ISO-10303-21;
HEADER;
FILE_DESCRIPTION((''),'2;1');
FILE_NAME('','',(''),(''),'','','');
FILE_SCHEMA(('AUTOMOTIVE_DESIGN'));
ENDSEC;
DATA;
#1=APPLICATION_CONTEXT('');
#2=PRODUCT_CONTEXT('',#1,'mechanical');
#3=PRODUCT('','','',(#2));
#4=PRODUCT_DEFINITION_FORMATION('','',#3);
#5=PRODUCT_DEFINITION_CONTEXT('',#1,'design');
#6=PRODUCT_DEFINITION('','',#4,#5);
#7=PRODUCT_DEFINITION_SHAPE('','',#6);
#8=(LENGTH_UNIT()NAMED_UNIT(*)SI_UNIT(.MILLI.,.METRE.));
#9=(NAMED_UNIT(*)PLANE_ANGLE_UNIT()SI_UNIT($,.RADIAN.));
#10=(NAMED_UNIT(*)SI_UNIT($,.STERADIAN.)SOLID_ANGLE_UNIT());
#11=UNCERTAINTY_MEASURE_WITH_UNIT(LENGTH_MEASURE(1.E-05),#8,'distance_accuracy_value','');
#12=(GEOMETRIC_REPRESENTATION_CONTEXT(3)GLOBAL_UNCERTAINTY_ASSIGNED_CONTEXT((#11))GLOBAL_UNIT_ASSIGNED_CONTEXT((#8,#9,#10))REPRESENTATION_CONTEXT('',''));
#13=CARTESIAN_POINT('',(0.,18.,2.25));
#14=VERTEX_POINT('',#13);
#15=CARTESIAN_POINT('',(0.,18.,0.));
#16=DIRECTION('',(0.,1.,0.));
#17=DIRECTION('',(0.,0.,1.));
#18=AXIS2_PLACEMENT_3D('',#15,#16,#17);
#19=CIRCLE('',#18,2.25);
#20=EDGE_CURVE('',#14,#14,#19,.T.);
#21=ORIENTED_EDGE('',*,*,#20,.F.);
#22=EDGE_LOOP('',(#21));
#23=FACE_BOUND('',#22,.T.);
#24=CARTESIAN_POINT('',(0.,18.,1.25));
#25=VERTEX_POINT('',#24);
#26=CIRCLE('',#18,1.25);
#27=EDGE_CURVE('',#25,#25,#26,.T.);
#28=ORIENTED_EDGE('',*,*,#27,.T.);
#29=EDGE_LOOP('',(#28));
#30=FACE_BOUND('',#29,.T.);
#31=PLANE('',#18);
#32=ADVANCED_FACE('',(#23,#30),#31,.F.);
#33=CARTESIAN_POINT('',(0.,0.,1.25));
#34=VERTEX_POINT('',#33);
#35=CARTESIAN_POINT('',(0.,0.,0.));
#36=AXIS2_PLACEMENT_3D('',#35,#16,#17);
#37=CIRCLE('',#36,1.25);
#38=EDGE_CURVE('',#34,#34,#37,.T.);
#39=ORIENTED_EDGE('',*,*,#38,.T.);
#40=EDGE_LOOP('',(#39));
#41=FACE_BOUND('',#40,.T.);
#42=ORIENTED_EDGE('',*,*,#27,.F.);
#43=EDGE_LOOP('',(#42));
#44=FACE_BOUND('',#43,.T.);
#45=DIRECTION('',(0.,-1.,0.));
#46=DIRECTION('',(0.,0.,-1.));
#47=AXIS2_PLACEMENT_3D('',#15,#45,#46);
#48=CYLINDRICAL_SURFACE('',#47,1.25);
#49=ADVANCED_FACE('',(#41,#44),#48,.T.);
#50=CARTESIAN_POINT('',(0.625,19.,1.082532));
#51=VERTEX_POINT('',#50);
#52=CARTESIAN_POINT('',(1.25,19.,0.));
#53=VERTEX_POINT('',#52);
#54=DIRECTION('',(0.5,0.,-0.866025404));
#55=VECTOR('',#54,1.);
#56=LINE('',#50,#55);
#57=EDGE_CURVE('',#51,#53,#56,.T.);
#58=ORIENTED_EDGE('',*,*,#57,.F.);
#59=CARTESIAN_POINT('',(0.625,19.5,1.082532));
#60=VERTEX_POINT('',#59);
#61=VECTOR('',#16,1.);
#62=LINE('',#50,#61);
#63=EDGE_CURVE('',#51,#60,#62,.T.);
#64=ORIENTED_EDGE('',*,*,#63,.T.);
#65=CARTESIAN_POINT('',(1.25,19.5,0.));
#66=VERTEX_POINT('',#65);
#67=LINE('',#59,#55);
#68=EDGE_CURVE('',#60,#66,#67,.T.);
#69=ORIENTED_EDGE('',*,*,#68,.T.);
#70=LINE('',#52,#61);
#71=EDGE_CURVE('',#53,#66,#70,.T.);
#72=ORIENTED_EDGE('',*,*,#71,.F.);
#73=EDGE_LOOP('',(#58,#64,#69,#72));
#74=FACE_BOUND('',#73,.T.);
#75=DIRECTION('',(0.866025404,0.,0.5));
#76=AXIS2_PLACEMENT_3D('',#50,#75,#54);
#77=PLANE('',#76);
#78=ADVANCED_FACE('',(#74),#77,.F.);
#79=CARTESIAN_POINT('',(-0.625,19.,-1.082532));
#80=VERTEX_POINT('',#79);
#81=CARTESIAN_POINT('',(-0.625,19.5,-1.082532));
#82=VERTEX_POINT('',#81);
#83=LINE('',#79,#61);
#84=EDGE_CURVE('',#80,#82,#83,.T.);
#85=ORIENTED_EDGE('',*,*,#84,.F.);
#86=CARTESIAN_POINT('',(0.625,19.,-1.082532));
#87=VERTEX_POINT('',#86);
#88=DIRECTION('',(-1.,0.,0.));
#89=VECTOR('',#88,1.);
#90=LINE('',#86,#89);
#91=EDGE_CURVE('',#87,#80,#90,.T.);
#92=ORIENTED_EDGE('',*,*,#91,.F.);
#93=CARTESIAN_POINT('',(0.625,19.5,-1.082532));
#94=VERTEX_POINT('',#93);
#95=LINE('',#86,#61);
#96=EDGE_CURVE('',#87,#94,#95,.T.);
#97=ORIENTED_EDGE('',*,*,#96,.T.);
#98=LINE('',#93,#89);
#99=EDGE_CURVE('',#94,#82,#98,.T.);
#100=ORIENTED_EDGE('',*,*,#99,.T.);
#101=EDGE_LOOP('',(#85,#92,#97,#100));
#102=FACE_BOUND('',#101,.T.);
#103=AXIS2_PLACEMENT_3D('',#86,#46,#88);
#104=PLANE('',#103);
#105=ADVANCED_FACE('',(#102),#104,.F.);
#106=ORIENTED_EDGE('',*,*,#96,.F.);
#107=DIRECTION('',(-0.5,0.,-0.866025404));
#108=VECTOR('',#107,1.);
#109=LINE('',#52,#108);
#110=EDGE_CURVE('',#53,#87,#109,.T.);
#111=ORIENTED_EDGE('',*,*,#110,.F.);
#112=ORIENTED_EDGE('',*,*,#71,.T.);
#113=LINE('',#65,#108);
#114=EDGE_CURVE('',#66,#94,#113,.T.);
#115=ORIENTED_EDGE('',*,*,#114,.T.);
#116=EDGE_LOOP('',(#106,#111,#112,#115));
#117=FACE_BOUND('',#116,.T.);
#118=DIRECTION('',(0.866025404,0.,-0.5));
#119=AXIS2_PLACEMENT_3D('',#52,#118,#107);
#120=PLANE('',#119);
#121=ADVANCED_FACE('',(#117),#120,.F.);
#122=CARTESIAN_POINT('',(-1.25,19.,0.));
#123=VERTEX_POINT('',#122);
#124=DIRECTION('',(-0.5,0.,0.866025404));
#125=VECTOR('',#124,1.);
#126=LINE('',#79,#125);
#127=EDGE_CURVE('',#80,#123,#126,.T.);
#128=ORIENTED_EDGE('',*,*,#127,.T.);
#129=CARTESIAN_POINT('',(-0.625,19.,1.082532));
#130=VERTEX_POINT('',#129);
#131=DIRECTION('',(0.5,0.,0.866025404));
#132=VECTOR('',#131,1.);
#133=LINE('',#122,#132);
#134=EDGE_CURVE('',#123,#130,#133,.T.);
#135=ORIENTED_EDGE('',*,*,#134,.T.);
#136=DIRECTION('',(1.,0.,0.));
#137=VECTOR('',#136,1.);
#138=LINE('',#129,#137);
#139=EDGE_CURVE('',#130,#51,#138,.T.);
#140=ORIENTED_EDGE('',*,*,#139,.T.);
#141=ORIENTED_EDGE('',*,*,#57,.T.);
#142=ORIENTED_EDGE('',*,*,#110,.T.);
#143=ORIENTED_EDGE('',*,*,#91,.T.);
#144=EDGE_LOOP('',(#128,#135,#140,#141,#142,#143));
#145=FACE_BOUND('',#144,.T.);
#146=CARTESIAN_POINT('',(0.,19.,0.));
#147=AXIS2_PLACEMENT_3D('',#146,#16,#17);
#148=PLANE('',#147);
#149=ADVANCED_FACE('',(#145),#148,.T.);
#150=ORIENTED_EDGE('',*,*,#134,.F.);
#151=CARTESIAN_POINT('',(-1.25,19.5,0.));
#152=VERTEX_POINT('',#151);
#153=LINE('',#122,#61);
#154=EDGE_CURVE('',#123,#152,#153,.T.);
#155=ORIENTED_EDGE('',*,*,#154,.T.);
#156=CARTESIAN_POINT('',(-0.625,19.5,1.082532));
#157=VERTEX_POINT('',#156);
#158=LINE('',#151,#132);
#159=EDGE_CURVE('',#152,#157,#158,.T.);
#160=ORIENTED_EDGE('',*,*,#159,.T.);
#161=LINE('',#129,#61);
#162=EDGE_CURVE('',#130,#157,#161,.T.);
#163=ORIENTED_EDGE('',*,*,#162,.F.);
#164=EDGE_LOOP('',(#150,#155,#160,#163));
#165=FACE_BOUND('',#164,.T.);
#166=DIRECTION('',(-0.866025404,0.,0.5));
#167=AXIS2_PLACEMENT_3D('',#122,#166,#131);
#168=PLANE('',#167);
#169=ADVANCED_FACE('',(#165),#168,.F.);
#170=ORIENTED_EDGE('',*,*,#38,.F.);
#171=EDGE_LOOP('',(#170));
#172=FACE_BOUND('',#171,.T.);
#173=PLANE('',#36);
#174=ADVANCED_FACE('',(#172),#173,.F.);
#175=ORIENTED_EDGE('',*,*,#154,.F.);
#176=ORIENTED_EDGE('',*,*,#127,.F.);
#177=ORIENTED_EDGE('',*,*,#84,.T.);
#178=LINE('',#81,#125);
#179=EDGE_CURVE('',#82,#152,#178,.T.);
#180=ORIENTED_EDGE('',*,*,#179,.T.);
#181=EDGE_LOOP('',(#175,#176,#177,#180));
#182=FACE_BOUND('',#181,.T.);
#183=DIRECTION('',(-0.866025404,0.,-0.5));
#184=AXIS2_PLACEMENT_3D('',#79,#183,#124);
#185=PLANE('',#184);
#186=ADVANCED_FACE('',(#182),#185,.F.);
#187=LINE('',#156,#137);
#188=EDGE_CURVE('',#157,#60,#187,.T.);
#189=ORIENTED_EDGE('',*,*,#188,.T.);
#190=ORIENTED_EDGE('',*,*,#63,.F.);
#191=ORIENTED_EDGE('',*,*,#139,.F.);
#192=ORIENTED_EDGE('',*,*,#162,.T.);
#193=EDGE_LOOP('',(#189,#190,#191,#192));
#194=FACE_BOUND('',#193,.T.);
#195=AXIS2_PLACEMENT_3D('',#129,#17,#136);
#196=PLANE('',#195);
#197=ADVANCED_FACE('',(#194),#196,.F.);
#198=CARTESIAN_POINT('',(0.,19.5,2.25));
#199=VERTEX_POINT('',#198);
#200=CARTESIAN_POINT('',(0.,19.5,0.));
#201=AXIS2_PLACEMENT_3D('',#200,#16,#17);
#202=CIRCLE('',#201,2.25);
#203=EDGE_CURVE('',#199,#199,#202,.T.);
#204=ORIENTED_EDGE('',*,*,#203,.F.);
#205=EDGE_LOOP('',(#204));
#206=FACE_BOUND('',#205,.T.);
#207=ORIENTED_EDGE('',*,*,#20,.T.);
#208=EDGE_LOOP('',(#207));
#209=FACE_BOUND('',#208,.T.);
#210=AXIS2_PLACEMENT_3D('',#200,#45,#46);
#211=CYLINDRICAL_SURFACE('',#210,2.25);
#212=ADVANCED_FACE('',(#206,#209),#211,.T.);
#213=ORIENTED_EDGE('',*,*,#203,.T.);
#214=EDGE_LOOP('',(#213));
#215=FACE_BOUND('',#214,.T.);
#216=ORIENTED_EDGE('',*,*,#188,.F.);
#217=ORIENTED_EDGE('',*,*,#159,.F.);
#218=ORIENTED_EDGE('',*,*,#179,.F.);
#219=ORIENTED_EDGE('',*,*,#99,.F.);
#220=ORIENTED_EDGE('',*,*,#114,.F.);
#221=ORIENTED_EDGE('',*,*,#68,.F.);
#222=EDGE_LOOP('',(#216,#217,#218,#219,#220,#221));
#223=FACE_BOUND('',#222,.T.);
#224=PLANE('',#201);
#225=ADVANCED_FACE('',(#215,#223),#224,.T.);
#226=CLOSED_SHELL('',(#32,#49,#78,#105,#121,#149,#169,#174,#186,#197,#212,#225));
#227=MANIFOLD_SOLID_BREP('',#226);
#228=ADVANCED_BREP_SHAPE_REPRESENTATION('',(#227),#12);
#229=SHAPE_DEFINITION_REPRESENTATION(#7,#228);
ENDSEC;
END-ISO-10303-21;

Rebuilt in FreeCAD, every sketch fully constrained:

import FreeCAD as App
import Part
import Sketcher
Q = App.Units.Quantity


def add_polygon(sketch, points):
    """Adds a closed chain of lines whose ends are joined by coincident constraints."""
    first, n = sketch.GeometryCount, len(points)
    for a, b in zip(points, points[1:] + points[:1]):
        sketch.addGeometry(Part.LineSegment(App.Vector(*a, 0), App.Vector(*b, 0)), False)
    for i in range(n):
        sketch.addConstraint(Sketcher.Constraint("Coincident", first + i, 2, first + (i + 1) % n, 1))

doc = App.newDocument("Part")
body = doc.addObject("PartDesign::Body", "Body")

# Sketch on XZ plane
sketch1 = body.newObject("Sketcher::SketchObject", "Sketch")
sketch1.AttachmentSupport = (doc.getObject("XZ_Plane"), [""])
sketch1.MapMode = "FlatFace"
sketch1.addGeometry(Part.Circle(App.Vector(0, 0, 0), App.Vector(0, 0, 1), 1.2), False)
sketch1.addConstraint(Sketcher.Constraint("Coincident", 0, 3, -1, 1))
sketch1.addConstraint(Sketcher.Constraint("Diameter", 0, Q("2.5 mm")))
pad1 = body.newObject("PartDesign::Pad", "Pad")
pad1.Profile = sketch1
pad1.Length = 18
pad1.Reversed = True

# Sketch on XZ plane
sketch2 = body.newObject("Sketcher::SketchObject", "Sketch001")
sketch2.AttachmentSupport = (doc.getObject("XZ_Plane"), [""])
sketch2.MapMode = "FlatFace"
sketch2.AttachmentOffset = App.Placement(App.Vector(0, 0, -18), App.Rotation())
sketch2.addGeometry(Part.Circle(App.Vector(0, 0, 0), App.Vector(0, 0, 1), 2.2), False)
sketch2.addConstraint(Sketcher.Constraint("Coincident", 0, 3, -1, 1))
sketch2.addConstraint(Sketcher.Constraint("Diameter", 0, Q("4.5 mm")))
pad2 = body.newObject("PartDesign::Pad", "Pad001")
pad2.Profile = sketch2
pad2.Length = 1.5
pad2.Reversed = True

# Sketch on XZ plane
sketch3 = body.newObject("Sketcher::SketchObject", "Sketch002")
sketch3.AttachmentSupport = (doc.getObject("XZ_Plane"), [""])
sketch3.MapMode = "FlatFace"
sketch3.AttachmentOffset = App.Placement(App.Vector(0, 0, -19.5), App.Rotation())
add_polygon(sketch3, [(1.2, 0), (0.6, -1.1), (-0.6, -1.1), (-1.2, 0), (-0.6, 1.1), (0.6, 1.1)])  # lines 0-5
sketch3.addConstraint(Sketcher.Constraint("Horizontal", 1))
sketch3.addConstraint(Sketcher.Constraint("Horizontal", 4))
sketch3.addConstraint(Sketcher.Constraint("Symmetric", 0, 2, 3, 2, -1, 1))
sketch3.addConstraint(Sketcher.Constraint("Symmetric", 2, 2, 5, 2, -1, 1))
sketch3.addConstraint(Sketcher.Constraint("PointOnObject", 2, 2, -1))
sketch3.addConstraint(Sketcher.Constraint("Parallel", 2, 5))
sketch3.addConstraint(Sketcher.Constraint("Vertical", 1, 2, 3, 2))
sketch3.addConstraint(Sketcher.Constraint("Angle", 0, Q("-120 deg")))
sketch3.addConstraint(Sketcher.Constraint("DistanceX", 1, 2, 1, 1, Q("1.25 mm")))
sketch3.addConstraint(Sketcher.Constraint("DistanceX", 2, 2, 5, 2, Q("2.5 mm")))
pocket1 = body.newObject("PartDesign::Pocket", "Pocket")
pocket1.Profile = sketch3
pocket1.Length = 0.5
pocket1.Reversed = True

doc.recompute()
